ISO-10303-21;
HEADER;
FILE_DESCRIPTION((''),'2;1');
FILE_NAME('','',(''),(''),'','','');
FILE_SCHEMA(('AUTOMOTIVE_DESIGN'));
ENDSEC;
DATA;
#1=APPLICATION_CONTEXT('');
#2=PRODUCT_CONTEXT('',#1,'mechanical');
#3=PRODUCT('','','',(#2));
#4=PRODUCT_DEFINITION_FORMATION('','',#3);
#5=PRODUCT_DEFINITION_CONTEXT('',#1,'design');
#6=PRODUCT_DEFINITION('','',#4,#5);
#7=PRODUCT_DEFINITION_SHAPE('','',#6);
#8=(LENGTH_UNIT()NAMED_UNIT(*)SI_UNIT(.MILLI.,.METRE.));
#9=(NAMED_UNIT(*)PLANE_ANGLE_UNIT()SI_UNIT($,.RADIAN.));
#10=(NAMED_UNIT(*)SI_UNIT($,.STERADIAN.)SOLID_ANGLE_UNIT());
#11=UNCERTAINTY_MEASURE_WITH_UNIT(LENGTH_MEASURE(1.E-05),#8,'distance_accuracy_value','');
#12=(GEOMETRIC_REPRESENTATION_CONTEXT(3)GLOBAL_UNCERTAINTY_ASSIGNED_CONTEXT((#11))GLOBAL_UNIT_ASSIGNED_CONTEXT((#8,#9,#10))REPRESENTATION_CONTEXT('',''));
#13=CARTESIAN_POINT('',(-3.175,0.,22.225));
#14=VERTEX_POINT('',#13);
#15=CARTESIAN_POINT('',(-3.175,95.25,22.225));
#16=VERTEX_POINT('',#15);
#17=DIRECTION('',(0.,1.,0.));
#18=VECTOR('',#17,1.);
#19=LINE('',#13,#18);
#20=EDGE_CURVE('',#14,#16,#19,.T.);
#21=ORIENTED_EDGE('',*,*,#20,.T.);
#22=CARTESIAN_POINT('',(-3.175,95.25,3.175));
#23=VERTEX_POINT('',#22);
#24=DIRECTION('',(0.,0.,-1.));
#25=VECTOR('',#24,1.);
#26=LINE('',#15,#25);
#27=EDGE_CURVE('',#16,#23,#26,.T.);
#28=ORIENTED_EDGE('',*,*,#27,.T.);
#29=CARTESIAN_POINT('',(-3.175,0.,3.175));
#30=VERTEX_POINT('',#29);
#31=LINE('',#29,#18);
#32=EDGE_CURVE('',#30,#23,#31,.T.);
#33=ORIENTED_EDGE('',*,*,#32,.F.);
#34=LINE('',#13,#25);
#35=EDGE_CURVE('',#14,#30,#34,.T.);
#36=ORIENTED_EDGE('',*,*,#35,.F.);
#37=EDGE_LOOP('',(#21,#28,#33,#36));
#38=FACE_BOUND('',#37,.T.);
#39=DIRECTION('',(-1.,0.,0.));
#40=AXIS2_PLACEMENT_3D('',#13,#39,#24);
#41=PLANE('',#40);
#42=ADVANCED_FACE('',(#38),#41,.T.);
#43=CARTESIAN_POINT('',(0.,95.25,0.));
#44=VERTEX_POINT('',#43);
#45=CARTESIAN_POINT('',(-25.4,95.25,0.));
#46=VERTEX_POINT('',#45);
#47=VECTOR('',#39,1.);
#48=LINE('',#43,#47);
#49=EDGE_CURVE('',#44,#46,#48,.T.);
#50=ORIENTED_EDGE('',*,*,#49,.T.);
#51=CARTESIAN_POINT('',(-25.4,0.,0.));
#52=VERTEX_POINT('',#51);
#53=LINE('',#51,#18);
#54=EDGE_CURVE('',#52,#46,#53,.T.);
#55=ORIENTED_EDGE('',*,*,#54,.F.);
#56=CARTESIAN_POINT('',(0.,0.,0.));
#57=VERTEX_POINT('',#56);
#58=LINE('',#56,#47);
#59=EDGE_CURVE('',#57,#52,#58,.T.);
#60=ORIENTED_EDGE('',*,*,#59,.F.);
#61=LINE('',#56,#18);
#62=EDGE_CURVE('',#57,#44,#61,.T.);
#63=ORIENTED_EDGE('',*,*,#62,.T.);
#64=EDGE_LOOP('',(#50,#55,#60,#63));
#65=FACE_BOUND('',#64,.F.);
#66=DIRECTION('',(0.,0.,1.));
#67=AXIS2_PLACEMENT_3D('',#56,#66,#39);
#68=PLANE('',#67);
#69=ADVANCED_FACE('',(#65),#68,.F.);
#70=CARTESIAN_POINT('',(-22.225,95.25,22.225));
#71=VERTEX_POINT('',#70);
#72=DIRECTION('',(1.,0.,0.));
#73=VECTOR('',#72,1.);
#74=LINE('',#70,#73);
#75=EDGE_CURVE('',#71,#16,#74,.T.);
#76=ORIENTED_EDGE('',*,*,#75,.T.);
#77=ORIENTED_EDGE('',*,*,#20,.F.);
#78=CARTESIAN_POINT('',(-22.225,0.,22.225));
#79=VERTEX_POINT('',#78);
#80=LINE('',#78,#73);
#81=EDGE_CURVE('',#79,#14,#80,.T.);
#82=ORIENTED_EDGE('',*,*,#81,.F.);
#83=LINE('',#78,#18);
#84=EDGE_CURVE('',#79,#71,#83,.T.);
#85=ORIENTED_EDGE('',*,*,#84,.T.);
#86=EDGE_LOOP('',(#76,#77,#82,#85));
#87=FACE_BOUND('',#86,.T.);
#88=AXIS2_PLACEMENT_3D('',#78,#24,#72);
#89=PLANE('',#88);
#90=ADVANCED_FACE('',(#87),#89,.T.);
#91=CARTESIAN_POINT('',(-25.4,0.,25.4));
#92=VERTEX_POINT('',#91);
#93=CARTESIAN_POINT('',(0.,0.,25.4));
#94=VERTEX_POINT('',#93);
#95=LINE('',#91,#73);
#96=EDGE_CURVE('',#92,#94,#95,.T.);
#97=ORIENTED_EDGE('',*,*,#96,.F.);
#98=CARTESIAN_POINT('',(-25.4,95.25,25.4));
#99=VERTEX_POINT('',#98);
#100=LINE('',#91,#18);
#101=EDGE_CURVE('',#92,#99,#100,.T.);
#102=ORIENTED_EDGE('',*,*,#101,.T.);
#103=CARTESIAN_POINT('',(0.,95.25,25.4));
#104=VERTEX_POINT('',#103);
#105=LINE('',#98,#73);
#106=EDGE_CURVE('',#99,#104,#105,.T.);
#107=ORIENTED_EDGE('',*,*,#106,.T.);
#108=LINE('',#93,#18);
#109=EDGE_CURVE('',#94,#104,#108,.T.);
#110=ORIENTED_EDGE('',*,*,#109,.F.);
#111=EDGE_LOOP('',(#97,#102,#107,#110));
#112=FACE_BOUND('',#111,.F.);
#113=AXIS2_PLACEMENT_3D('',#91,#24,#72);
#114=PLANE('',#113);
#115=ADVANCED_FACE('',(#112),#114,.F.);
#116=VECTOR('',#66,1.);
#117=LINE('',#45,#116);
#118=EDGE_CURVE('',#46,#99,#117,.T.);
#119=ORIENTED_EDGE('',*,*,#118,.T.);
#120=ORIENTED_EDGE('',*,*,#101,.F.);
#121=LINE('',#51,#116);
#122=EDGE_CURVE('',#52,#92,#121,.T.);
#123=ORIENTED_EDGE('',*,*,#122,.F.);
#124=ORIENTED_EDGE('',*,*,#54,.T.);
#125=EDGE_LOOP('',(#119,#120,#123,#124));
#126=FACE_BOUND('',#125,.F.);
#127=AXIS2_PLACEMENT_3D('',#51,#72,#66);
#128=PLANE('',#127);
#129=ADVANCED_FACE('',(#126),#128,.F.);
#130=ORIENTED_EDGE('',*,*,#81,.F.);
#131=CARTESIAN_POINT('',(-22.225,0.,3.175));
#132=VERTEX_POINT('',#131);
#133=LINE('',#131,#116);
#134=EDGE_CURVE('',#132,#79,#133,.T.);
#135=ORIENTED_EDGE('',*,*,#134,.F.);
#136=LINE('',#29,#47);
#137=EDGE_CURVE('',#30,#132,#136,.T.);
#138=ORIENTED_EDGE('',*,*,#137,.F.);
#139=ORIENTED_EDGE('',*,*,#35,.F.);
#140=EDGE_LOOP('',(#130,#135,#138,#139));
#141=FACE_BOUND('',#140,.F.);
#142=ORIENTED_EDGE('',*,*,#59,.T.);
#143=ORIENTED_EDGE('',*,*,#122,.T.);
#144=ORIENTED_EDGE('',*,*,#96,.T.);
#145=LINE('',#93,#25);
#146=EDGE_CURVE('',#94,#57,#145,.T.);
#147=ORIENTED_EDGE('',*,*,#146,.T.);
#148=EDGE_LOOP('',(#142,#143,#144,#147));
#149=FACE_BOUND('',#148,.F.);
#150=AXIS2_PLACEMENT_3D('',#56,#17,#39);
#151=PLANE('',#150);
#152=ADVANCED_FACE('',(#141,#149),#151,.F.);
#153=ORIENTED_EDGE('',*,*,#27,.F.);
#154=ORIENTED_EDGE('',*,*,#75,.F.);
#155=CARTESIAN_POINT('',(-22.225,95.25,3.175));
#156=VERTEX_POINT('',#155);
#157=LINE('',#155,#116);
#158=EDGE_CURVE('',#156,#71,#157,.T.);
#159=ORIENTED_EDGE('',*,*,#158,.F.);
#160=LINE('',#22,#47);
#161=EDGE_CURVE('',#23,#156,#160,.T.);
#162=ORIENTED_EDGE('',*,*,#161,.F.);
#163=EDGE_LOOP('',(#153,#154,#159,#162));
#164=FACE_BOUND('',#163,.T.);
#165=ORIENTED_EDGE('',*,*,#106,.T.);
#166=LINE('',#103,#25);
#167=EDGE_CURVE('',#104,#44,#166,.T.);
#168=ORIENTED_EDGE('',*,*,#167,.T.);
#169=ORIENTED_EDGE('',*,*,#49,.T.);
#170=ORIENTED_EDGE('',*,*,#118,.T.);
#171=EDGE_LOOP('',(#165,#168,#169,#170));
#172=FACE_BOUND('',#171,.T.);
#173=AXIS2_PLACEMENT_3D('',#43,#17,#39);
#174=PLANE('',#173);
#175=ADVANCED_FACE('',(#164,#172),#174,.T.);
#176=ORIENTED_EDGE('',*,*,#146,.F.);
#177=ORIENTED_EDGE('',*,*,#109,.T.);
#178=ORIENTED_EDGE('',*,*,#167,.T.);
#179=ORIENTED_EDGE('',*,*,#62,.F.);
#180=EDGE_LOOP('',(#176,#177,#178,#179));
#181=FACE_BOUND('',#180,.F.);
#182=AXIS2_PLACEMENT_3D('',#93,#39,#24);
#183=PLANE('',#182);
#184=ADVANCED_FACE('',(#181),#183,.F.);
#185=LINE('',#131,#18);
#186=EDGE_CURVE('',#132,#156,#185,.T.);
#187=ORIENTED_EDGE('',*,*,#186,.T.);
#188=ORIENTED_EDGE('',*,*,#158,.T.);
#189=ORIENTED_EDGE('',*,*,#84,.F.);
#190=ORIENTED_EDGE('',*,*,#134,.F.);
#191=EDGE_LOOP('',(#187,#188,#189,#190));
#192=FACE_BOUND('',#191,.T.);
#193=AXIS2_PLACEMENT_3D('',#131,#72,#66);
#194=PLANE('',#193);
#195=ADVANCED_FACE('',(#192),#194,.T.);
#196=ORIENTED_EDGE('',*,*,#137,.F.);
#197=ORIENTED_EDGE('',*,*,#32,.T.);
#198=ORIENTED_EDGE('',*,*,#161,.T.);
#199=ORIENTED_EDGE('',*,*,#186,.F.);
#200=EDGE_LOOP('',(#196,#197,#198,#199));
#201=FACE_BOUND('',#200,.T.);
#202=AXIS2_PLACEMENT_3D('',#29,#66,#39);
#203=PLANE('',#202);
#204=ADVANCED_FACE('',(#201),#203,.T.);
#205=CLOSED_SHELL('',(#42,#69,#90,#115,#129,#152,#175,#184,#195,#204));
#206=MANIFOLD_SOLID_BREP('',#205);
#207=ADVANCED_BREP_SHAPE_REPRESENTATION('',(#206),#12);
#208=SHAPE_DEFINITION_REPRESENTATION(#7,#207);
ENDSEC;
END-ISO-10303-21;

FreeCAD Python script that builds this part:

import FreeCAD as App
import Part
import Sketcher
from FreeCAD import Vector
Q = App.Units.Quantity

doc = App.newDocument("Part")
body = doc.addObject("PartDesign::Body", "Body")

# Sketch on XZ plane
sketch1 = doc.addObject("Sketcher::SketchObject", "Sketch")
body.addObject(sketch1)
sketch1.AttachmentSupport = (doc.XZ_Plane, [""])
sketch1.MapMode = "FlatFace"
sketch1.addGeometry(Part.LineSegment(Vector(0, 25, 0), Vector(0, 0, 0)), False)
sketch1.addGeometry(Part.LineSegment(Vector(0, 0, 0), Vector(-25, 0, 0)), False)
sketch1.addGeometry(Part.LineSegment(Vector(-25, 0, 0), Vector(-25, 25, 0)), False)
sketch1.addGeometry(Part.LineSegment(Vector(-25, 25, 0), Vector(0, 25, 0)), False)
sketch1.addGeometry(Part.LineSegment(Vector(-3, 22, 0), Vector(-22, 22, 0)), False)
sketch1.addGeometry(Part.LineSegment(Vector(-22, 22, 0), Vector(-22, 3, 0)), False)
sketch1.addGeometry(Part.LineSegment(Vector(-22, 3, 0), Vector(-3, 3, 0)), False)
sketch1.addGeometry(Part.LineSegment(Vector(-3, 3, 0), Vector(-3, 22, 0)), False)
sketch1.addConstraint(Sketcher.Constraint("Coincident", 0, 2, 1, 1))
sketch1.addConstraint(Sketcher.Constraint("Coincident", 1, 2, 2, 1))
sketch1.addConstraint(Sketcher.Constraint("Coincident", 2, 2, 3, 1))
sketch1.addConstraint(Sketcher.Constraint("Coincident", 3, 2, 0, 1))
sketch1.addConstraint(Sketcher.Constraint("Coincident", 4, 2, 5, 1))
sketch1.addConstraint(Sketcher.Constraint("Coincident", 5, 2, 6, 1))
sketch1.addConstraint(Sketcher.Constraint("Coincident", 6, 2, 7, 1))
sketch1.addConstraint(Sketcher.Constraint("Coincident", 7, 2, 4, 1))
sketch1.addConstraint(Sketcher.Constraint("Vertical", 0))
sketch1.addConstraint(Sketcher.Constraint("Horizontal", 1))
sketch1.addConstraint(Sketcher.Constraint("Vertical", 2))
sketch1.addConstraint(Sketcher.Constraint("Horizontal", 3))
sketch1.addConstraint(Sketcher.Constraint("Horizontal", 4))
sketch1.addConstraint(Sketcher.Constraint("Vertical", 5))
sketch1.addConstraint(Sketcher.Constraint("Horizontal", 6))
sketch1.addConstraint(Sketcher.Constraint("Vertical", 7))
sketch1.addConstraint(Sketcher.Constraint("Coincident", 0, 2, -1, 1))
sketch1.addConstraint(Sketcher.Constraint("Equal", 3, 0))
sketch1.addConstraint(Sketcher.Constraint("Equal", 6, 5))
sketch1.addConstraint(Sketcher.Constraint("DistanceX", 1, 2, 1, 1, Q("1 in")))
sketch1.addConstraint(Sketcher.Constraint("DistanceY", -1, 1, 5, 2, Q("0.125 in")))
sketch1.addConstraint(Sketcher.Constraint("DistanceX", 6, 2, -1, 1, Q("0.125 in")))
sketch1.addConstraint(Sketcher.Constraint("DistanceX", 2, 2, 4, 2, Q("0.125 in")))
pad1 = doc.addObject("PartDesign::Pad", "Pad")
body.addObject(pad1)
pad1.Profile = sketch1
pad1.Length = Q("3.75 in")
pad1.Reversed = True

doc.recompute()
